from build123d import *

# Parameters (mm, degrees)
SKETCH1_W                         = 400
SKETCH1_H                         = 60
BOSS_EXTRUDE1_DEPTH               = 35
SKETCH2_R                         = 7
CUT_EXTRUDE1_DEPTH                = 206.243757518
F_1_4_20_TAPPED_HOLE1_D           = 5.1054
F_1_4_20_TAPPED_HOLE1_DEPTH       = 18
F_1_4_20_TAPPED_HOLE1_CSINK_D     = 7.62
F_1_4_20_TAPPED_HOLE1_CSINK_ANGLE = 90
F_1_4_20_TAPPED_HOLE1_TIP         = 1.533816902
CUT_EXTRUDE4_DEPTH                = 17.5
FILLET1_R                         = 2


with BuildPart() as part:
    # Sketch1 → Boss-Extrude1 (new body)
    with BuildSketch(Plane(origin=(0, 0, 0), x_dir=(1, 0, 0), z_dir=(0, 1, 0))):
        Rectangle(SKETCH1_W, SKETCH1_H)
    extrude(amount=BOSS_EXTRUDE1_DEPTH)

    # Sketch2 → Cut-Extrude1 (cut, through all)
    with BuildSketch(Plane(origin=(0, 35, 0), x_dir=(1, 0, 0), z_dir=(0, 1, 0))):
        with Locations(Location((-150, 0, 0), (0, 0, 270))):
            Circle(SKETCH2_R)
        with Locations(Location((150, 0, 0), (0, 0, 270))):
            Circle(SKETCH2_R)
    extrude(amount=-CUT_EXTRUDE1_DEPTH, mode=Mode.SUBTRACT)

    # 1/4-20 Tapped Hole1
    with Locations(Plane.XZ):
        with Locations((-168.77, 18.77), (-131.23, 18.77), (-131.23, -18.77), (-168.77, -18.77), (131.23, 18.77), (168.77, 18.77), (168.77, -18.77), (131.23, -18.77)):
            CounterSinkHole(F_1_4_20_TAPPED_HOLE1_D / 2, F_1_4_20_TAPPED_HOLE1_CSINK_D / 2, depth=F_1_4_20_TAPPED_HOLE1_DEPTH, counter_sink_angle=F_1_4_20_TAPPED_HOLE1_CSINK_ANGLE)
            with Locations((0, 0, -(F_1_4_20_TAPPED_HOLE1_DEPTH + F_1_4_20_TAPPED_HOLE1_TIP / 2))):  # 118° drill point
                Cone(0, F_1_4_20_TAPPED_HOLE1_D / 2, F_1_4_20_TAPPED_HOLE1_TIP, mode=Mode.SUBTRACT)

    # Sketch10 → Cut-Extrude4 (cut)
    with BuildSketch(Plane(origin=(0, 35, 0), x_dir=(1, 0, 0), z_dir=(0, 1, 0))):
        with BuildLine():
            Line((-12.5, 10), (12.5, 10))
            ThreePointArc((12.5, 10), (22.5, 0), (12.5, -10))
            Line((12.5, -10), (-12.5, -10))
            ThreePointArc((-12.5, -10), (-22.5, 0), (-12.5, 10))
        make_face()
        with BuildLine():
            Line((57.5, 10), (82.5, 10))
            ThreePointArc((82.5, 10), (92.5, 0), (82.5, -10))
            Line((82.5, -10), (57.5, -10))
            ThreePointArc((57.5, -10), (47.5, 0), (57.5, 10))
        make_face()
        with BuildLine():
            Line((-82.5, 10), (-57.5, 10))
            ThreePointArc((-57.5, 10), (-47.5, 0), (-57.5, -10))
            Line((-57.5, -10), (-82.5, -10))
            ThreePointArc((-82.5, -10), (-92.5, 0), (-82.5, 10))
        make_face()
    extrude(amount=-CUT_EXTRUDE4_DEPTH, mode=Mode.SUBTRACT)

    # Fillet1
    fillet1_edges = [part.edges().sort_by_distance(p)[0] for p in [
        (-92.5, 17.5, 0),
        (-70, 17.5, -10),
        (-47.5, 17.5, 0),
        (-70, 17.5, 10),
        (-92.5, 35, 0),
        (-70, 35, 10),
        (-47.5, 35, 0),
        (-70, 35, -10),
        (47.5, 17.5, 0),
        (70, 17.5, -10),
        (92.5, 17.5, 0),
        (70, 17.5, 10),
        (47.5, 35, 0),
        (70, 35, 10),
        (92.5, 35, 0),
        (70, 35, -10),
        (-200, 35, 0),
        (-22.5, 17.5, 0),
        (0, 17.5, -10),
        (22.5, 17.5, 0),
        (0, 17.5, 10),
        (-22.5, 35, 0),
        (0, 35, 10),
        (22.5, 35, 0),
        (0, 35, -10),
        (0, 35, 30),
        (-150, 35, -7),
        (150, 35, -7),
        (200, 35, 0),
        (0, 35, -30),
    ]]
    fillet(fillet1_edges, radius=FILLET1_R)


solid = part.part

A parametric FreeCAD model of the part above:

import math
import FreeCAD as App
import Part
import Sketcher
from FreeCAD import Vector
Q = App.Units.Quantity


def edges_at(feature, points):
    """Names of the edges that pass closest to the given points."""
    edges = feature.Shape.Edges
    near = lambda p: min(range(len(edges)), key=lambda i: edges[i].distToShape(Part.Vertex(*p))[0])
    return sorted({f"Edge{near(p) + 1}" for p in points})

doc = App.newDocument("Part")
params = doc.addObject("Spreadsheet::Sheet", "Params")
for row, (alias, value) in enumerate([
    ("sketch1_width", "400 mm"),
    ("sketch1_height", "60 mm"),
    ("pad1_length", "35 mm"),
    ("sketch2_diameter", "14 mm"),
    ("hole_diameter", "5.1054 mm"),
    ("hole_depth", "18 mm"),
    ("hole_csink_diameter", "7.62 mm"),
    ("sketch4_radius", "10 mm"),
    ("sketch4_width", "25 mm"),
    ("pocket2_length", "17.5 mm"),
    ("fillet_radius", "2 mm"),
], start=1):
    params.set(f"A{row}", alias)
    params.set(f"B{row}", "=" + value)
    params.setAlias(f"B{row}", alias)

body = doc.addObject("PartDesign::Body", "Body")

sketch1 = doc.addObject("Sketcher::SketchObject", "Sketch")
body.addObject(sketch1)
sketch1.AttachmentSupport = (doc.XZ_Plane, [""])
sketch1.MapMode = "FlatFace"
sketch1.addGeometry(Part.LineSegment(Vector(-200, -30, 0), Vector(-200, 30, 0)), False)
sketch1.addGeometry(Part.LineSegment(Vector(-200, 30, 0), Vector(200, 30, 0)), False)
sketch1.addGeometry(Part.LineSegment(Vector(200, 30, 0), Vector(200, -30, 0)), False)
sketch1.addGeometry(Part.LineSegment(Vector(200, -30, 0), Vector(-200, -30, 0)), False)
sketch1.addConstraint(Sketcher.Constraint("Coincident", 0, 2, 1, 1))
sketch1.addConstraint(Sketcher.Constraint("Coincident", 1, 2, 2, 1))
sketch1.addConstraint(Sketcher.Constraint("Coincident", 2, 2, 3, 1))
sketch1.addConstraint(Sketcher.Constraint("Coincident", 3, 2, 0, 1))
sketch1.addConstraint(Sketcher.Constraint("Vertical", 0))
sketch1.addConstraint(Sketcher.Constraint("Horizontal", 1))
sketch1.addConstraint(Sketcher.Constraint("Vertical", 2))
sketch1.addConstraint(Sketcher.Constraint("Horizontal", 3))
sketch1.addConstraint(Sketcher.Constraint("Symmetric", 0, 2, 2, 2, -1, 1))
sketch1.addConstraint(Sketcher.Constraint("DistanceX", 1, 1, 1, 2, Q("400 mm")))
sketch1.addConstraint(Sketcher.Constraint("DistanceY", 0, 1, 0, 2, Q("60 mm")))
sketch1.setExpression("Constraints[9]", "Params.sketch1_width")
sketch1.setExpression("Constraints[10]", "Params.sketch1_height")
pad1 = doc.addObject("PartDesign::Pad", "Pad")
body.addObject(pad1)
pad1.Profile = sketch1
pad1.setExpression("Length", "Params.pad1_length")
pad1.Reversed = True

sketch2 = doc.addObject("Sketcher::SketchObject", "Sketch001")
body.addObject(sketch2)
sketch2.AttachmentSupport = (doc.XZ_Plane, [""])
sketch2.MapMode = "FlatFace"
sketch2.AttachmentOffset = App.Placement(Vector(0, 0, -35), App.Rotation())
sketch2.addGeometry(Part.Circle(Vector(-150, 0, 0), Vector(0, 0, 1), 7), False)
sketch2.addGeometry(Part.Circle(Vector(150, 0, 0), Vector(0, 0, 1), 7), False)
sketch2.addConstraint(Sketcher.Constraint("Equal", 0, 1))
sketch2.addConstraint(Sketcher.Constraint("Symmetric", 0, 3, 1, 3, -1, 1))
sketch2.addConstraint(Sketcher.Constraint("PointOnObject", 0, 3, -1))
sketch2.addConstraint(Sketcher.Constraint("Diameter", 0, Q("14 mm")))
sketch2.addConstraint(Sketcher.Constraint("DistanceX", 0, 3, -1, 1, Q("150 mm")))
sketch2.setExpression("Constraints[3]", "Params.sketch2_diameter")
pocket1 = doc.addObject("PartDesign::Pocket", "Pocket")
body.addObject(pocket1)
pocket1.Profile = sketch2
pocket1.Type = "ThroughAll"
pocket1.Reversed = True

sketch3 = doc.addObject("Sketcher::SketchObject", "Sketch002")
body.addObject(sketch3)
sketch3.AttachmentSupport = (doc.XZ_Plane, [""])
sketch3.MapMode = "FlatFace"
sketch3.addGeometry(Part.Circle(Vector(-168.8, 18.8, 0), Vector(0, 0, 1), 2.6), False)
sketch3.addGeometry(Part.Circle(Vector(-131.2, 18.8, 0), Vector(0, 0, 1), 2.6), False)
sketch3.addGeometry(Part.Circle(Vector(-131.2, -18.8, 0), Vector(0, 0, 1), 2.6), False)
sketch3.addGeometry(Part.Circle(Vector(-168.8, -18.8, 0), Vector(0, 0, 1), 2.6), False)
sketch3.addGeometry(Part.Circle(Vector(131.2, 18.8, 0), Vector(0, 0, 1), 2.6), False)
sketch3.addGeometry(Part.Circle(Vector(168.8, 18.8, 0), Vector(0, 0, 1), 2.6), False)
sketch3.addGeometry(Part.Circle(Vector(168.8, -18.8, 0), Vector(0, 0, 1), 2.6), False)
sketch3.addGeometry(Part.Circle(Vector(131.2, -18.8, 0), Vector(0, 0, 1), 2.6), False)
sketch3.addConstraint(Sketcher.Constraint("Equal", 0, 1))
sketch3.addConstraint(Sketcher.Constraint("Equal", 1, 2))
sketch3.addConstraint(Sketcher.Constraint("Equal", 2, 3))
sketch3.addConstraint(Sketcher.Constraint("Equal", 3, 4))
sketch3.addConstraint(Sketcher.Constraint("Equal", 4, 5))
sketch3.addConstraint(Sketcher.Constraint("Equal", 5, 6))
sketch3.addConstraint(Sketcher.Constraint("Equal", 6, 7))
sketch3.addConstraint(Sketcher.Constraint("Symmetric", 2, 3, 4, 3, -1, 1))
sketch3.addConstraint(Sketcher.Constraint("Symmetric", 3, 3, 5, 3, -1, 1))
sketch3.addConstraint(Sketcher.Constraint("Symmetric", 0, 3, 6, 3, -1, 1))
sketch3.addConstraint(Sketcher.Constraint("Symmetric", 1, 3, 7, 3, -1, 1))
sketch3.addConstraint(Sketcher.Constraint("Symmetric", 1, 3, 4, 3, -2))
sketch3.addConstraint(Sketcher.Constraint("Symmetric", 0, 3, 5, 3, -2))
sketch3.addConstraint(Sketcher.Constraint("Horizontal", 0, 3, 1, 3))
sketch3.addConstraint(Sketcher.Constraint("DistanceX", 0, 3, 4, 3, Q("300 mm")))
sketch3.addConstraint(Sketcher.Constraint("Diameter", 0, Q("5.1054 mm")))
sketch3.addConstraint(Sketcher.Constraint("DistanceX", 0, 3, -1, 1, Q("168.77 mm")))
sketch3.addConstraint(Sketcher.Constraint("DistanceY", -1, 1, 0, 3, Q("18.77 mm")))
doc.recompute()
hole = doc.addObject("PartDesign::Hole", "Hole")
body.addObject(hole)
hole.Profile = sketch3
hole.ThreadType = "None"
hole.setExpression("Diameter", "Params.hole_diameter")
hole.DepthType = "Dimension"
hole.setExpression("Depth", "Params.hole_depth")
hole.DrillPoint = "Angled"
hole.DrillPointAngle = 118
hole.HoleCutType = "Countersink"
hole.setExpression("HoleCutDiameter", "Params.hole_csink_diameter")
hole.HoleCutCountersinkAngle = 90

sketch4 = doc.addObject("Sketcher::SketchObject", "Sketch003")
body.addObject(sketch4)
sketch4.AttachmentSupport = (doc.XZ_Plane, [""])
sketch4.MapMode = "FlatFace"
sketch4.AttachmentOffset = App.Placement(Vector(0, 0, -35), App.Rotation())
sketch4.addGeometry(Part.LineSegment(Vector(12, -10, 0), Vector(-12, -10, 0)), False)
sketch4.addGeometry(Part.ArcOfCircle(Part.Circle(Vector(-12, 0, 0), Vector(0, 0, 1), 10), math.radians(90), math.radians(270)), False)
sketch4.addGeometry(Part.LineSegment(Vector(-12, 10, 0), Vector(12, 10, 0)), False)
sketch4.addGeometry(Part.ArcOfCircle(Part.Circle(Vector(12, 0, 0), Vector(0, 0, 1), 10), math.radians(-90), math.radians(90)), False)
sketch4.addGeometry(Part.LineSegment(Vector(82, -10, 0), Vector(58, -10, 0)), False)
sketch4.addGeometry(Part.ArcOfCircle(Part.Circle(Vector(58, 0, 0), Vector(0, 0, 1), 10), math.radians(90), math.radians(270)), False)
sketch4.addGeometry(Part.LineSegment(Vector(58, 10, 0), Vector(82, 10, 0)), False)
sketch4.addGeometry(Part.ArcOfCircle(Part.Circle(Vector(82, 0, 0), Vector(0, 0, 1), 10), math.radians(-90), math.radians(90)), False)
sketch4.addGeometry(Part.LineSegment(Vector(-58, -10, 0), Vector(-82, -10, 0)), False)
sketch4.addGeometry(Part.ArcOfCircle(Part.Circle(Vector(-82, 0, 0), Vector(0, 0, 1), 10), math.radians(90), math.radians(270)), False)
sketch4.addGeometry(Part.LineSegment(Vector(-82, 10, 0), Vector(-58, 10, 0)), False)
sketch4.addGeometry(Part.ArcOfCircle(Part.Circle(Vector(-58, 0, 0), Vector(0, 0, 1), 10), math.radians(-90), math.radians(90)), False)
sketch4.addConstraint(Sketcher.Constraint("Tangent", 0, 2, 1, 2))
sketch4.addConstraint(Sketcher.Constraint("Tangent", 1, 1, 2, 1))
sketch4.addConstraint(Sketcher.Constraint("Tangent", 2, 2, 3, 2))
sketch4.addConstraint(Sketcher.Constraint("Tangent", 3, 1, 0, 1))
sketch4.addConstraint(Sketcher.Constraint("Tangent", 4, 2, 5, 2))
sketch4.addConstraint(Sketcher.Constraint("Tangent", 5, 1, 6, 1))
sketch4.addConstraint(Sketcher.Constraint("Tangent", 6, 2, 7, 2))
sketch4.addConstraint(Sketcher.Constraint("Tangent", 7, 1, 4, 1))
sketch4.addConstraint(Sketcher.Constraint("Tangent", 8, 2, 9, 2))
sketch4.addConstraint(Sketcher.Constraint("Tangent", 9, 1, 10, 1))
sketch4.addConstraint(Sketcher.Constraint("Tangent", 10, 2, 11, 2))
sketch4.addConstraint(Sketcher.Constraint("Tangent", 11, 1, 8, 1))
sketch4.addConstraint(Sketcher.Constraint("Horizontal", 0))
sketch4.addConstraint(Sketcher.Constraint("Horizontal", 2))
sketch4.addConstraint(Sketcher.Constraint("Horizontal", 4))
sketch4.addConstraint(Sketcher.Constraint("Horizontal", 6))
sketch4.addConstraint(Sketcher.Constraint("Horizontal", 8))
sketch4.addConstraint(Sketcher.Constraint("Horizontal", 10))
sketch4.addConstraint(Sketcher.Constraint("Equal", 3, 5))
sketch4.addConstraint(Sketcher.Constraint("Equal", 7, 9))
sketch4.addConstraint(Sketcher.Constraint("Symmetric", 1, 3, 3, 3, -1, 1))
sketch4.addConstraint(Sketcher.Constraint("Symmetric", 7, 3, 9, 3, -1, 1))
sketch4.addConstraint(Sketcher.Constraint("Symmetric", 5, 3, 11, 3, -2))
sketch4.addConstraint(Sketcher.Constraint("Equal", 2, 4))
sketch4.addConstraint(Sketcher.Constraint("Radius", 1, Q("10 mm")))
sketch4.addConstraint(Sketcher.Constraint("DistanceX", 0, 2, 0, 1, Q("25 mm")))
sketch4.addConstraint(Sketcher.Constraint("DistanceX", 3, 3, 5, 3, Q("45 mm")))
sketch4.setExpression("Constraints[24]", "Params.sketch4_radius")
sketch4.setExpression("Constraints[25]", "Params.sketch4_width")
pocket2 = doc.addObject("PartDesign::Pocket", "Pocket001")
body.addObject(pocket2)
pocket2.Profile = sketch4
pocket2.setExpression("Length", "Params.pocket2_length")
pocket2.Reversed = True
doc.recompute()

fillet = doc.addObject("PartDesign::Fillet", "Fillet")
body.addObject(fillet)
fillet.Base = (pocket2, edges_at(pocket2, [
    (-92.5, 17.5, 0),
    (-70, 17.5, -10),
    (-47.5, 17.5, 0),
    (-70, 17.5, 10),
    (-92.5, 35, 0),
    (-70, 35, 10),
    (-47.5, 35, 0),
    (-70, 35, -10),
    (47.5, 17.5, 0),
    (70, 17.5, -10),
    (92.5, 17.5, 0),
    (70, 17.5, 10),
    (47.5, 35, 0),
    (70, 35, 10),
    (92.5, 35, 0),
    (70, 35, -10),
    (-200, 35, 0),
    (-22.5, 17.5, 0),
    (0, 17.5, -10),
    (22.5, 17.5, 0),
    (0, 17.5, 10),
    (-22.5, 35, 0),
    (0, 35, 10),
    (22.5, 35, 0),
    (0, 35, -10),
    (0, 35, 30),
    (-150, 35, -7),
    (150, 35, -7),
    (200, 35, 0),
    (0, 35, -30),
]))
fillet.setExpression("Radius", "Params.fillet_radius")

doc.recompute()
